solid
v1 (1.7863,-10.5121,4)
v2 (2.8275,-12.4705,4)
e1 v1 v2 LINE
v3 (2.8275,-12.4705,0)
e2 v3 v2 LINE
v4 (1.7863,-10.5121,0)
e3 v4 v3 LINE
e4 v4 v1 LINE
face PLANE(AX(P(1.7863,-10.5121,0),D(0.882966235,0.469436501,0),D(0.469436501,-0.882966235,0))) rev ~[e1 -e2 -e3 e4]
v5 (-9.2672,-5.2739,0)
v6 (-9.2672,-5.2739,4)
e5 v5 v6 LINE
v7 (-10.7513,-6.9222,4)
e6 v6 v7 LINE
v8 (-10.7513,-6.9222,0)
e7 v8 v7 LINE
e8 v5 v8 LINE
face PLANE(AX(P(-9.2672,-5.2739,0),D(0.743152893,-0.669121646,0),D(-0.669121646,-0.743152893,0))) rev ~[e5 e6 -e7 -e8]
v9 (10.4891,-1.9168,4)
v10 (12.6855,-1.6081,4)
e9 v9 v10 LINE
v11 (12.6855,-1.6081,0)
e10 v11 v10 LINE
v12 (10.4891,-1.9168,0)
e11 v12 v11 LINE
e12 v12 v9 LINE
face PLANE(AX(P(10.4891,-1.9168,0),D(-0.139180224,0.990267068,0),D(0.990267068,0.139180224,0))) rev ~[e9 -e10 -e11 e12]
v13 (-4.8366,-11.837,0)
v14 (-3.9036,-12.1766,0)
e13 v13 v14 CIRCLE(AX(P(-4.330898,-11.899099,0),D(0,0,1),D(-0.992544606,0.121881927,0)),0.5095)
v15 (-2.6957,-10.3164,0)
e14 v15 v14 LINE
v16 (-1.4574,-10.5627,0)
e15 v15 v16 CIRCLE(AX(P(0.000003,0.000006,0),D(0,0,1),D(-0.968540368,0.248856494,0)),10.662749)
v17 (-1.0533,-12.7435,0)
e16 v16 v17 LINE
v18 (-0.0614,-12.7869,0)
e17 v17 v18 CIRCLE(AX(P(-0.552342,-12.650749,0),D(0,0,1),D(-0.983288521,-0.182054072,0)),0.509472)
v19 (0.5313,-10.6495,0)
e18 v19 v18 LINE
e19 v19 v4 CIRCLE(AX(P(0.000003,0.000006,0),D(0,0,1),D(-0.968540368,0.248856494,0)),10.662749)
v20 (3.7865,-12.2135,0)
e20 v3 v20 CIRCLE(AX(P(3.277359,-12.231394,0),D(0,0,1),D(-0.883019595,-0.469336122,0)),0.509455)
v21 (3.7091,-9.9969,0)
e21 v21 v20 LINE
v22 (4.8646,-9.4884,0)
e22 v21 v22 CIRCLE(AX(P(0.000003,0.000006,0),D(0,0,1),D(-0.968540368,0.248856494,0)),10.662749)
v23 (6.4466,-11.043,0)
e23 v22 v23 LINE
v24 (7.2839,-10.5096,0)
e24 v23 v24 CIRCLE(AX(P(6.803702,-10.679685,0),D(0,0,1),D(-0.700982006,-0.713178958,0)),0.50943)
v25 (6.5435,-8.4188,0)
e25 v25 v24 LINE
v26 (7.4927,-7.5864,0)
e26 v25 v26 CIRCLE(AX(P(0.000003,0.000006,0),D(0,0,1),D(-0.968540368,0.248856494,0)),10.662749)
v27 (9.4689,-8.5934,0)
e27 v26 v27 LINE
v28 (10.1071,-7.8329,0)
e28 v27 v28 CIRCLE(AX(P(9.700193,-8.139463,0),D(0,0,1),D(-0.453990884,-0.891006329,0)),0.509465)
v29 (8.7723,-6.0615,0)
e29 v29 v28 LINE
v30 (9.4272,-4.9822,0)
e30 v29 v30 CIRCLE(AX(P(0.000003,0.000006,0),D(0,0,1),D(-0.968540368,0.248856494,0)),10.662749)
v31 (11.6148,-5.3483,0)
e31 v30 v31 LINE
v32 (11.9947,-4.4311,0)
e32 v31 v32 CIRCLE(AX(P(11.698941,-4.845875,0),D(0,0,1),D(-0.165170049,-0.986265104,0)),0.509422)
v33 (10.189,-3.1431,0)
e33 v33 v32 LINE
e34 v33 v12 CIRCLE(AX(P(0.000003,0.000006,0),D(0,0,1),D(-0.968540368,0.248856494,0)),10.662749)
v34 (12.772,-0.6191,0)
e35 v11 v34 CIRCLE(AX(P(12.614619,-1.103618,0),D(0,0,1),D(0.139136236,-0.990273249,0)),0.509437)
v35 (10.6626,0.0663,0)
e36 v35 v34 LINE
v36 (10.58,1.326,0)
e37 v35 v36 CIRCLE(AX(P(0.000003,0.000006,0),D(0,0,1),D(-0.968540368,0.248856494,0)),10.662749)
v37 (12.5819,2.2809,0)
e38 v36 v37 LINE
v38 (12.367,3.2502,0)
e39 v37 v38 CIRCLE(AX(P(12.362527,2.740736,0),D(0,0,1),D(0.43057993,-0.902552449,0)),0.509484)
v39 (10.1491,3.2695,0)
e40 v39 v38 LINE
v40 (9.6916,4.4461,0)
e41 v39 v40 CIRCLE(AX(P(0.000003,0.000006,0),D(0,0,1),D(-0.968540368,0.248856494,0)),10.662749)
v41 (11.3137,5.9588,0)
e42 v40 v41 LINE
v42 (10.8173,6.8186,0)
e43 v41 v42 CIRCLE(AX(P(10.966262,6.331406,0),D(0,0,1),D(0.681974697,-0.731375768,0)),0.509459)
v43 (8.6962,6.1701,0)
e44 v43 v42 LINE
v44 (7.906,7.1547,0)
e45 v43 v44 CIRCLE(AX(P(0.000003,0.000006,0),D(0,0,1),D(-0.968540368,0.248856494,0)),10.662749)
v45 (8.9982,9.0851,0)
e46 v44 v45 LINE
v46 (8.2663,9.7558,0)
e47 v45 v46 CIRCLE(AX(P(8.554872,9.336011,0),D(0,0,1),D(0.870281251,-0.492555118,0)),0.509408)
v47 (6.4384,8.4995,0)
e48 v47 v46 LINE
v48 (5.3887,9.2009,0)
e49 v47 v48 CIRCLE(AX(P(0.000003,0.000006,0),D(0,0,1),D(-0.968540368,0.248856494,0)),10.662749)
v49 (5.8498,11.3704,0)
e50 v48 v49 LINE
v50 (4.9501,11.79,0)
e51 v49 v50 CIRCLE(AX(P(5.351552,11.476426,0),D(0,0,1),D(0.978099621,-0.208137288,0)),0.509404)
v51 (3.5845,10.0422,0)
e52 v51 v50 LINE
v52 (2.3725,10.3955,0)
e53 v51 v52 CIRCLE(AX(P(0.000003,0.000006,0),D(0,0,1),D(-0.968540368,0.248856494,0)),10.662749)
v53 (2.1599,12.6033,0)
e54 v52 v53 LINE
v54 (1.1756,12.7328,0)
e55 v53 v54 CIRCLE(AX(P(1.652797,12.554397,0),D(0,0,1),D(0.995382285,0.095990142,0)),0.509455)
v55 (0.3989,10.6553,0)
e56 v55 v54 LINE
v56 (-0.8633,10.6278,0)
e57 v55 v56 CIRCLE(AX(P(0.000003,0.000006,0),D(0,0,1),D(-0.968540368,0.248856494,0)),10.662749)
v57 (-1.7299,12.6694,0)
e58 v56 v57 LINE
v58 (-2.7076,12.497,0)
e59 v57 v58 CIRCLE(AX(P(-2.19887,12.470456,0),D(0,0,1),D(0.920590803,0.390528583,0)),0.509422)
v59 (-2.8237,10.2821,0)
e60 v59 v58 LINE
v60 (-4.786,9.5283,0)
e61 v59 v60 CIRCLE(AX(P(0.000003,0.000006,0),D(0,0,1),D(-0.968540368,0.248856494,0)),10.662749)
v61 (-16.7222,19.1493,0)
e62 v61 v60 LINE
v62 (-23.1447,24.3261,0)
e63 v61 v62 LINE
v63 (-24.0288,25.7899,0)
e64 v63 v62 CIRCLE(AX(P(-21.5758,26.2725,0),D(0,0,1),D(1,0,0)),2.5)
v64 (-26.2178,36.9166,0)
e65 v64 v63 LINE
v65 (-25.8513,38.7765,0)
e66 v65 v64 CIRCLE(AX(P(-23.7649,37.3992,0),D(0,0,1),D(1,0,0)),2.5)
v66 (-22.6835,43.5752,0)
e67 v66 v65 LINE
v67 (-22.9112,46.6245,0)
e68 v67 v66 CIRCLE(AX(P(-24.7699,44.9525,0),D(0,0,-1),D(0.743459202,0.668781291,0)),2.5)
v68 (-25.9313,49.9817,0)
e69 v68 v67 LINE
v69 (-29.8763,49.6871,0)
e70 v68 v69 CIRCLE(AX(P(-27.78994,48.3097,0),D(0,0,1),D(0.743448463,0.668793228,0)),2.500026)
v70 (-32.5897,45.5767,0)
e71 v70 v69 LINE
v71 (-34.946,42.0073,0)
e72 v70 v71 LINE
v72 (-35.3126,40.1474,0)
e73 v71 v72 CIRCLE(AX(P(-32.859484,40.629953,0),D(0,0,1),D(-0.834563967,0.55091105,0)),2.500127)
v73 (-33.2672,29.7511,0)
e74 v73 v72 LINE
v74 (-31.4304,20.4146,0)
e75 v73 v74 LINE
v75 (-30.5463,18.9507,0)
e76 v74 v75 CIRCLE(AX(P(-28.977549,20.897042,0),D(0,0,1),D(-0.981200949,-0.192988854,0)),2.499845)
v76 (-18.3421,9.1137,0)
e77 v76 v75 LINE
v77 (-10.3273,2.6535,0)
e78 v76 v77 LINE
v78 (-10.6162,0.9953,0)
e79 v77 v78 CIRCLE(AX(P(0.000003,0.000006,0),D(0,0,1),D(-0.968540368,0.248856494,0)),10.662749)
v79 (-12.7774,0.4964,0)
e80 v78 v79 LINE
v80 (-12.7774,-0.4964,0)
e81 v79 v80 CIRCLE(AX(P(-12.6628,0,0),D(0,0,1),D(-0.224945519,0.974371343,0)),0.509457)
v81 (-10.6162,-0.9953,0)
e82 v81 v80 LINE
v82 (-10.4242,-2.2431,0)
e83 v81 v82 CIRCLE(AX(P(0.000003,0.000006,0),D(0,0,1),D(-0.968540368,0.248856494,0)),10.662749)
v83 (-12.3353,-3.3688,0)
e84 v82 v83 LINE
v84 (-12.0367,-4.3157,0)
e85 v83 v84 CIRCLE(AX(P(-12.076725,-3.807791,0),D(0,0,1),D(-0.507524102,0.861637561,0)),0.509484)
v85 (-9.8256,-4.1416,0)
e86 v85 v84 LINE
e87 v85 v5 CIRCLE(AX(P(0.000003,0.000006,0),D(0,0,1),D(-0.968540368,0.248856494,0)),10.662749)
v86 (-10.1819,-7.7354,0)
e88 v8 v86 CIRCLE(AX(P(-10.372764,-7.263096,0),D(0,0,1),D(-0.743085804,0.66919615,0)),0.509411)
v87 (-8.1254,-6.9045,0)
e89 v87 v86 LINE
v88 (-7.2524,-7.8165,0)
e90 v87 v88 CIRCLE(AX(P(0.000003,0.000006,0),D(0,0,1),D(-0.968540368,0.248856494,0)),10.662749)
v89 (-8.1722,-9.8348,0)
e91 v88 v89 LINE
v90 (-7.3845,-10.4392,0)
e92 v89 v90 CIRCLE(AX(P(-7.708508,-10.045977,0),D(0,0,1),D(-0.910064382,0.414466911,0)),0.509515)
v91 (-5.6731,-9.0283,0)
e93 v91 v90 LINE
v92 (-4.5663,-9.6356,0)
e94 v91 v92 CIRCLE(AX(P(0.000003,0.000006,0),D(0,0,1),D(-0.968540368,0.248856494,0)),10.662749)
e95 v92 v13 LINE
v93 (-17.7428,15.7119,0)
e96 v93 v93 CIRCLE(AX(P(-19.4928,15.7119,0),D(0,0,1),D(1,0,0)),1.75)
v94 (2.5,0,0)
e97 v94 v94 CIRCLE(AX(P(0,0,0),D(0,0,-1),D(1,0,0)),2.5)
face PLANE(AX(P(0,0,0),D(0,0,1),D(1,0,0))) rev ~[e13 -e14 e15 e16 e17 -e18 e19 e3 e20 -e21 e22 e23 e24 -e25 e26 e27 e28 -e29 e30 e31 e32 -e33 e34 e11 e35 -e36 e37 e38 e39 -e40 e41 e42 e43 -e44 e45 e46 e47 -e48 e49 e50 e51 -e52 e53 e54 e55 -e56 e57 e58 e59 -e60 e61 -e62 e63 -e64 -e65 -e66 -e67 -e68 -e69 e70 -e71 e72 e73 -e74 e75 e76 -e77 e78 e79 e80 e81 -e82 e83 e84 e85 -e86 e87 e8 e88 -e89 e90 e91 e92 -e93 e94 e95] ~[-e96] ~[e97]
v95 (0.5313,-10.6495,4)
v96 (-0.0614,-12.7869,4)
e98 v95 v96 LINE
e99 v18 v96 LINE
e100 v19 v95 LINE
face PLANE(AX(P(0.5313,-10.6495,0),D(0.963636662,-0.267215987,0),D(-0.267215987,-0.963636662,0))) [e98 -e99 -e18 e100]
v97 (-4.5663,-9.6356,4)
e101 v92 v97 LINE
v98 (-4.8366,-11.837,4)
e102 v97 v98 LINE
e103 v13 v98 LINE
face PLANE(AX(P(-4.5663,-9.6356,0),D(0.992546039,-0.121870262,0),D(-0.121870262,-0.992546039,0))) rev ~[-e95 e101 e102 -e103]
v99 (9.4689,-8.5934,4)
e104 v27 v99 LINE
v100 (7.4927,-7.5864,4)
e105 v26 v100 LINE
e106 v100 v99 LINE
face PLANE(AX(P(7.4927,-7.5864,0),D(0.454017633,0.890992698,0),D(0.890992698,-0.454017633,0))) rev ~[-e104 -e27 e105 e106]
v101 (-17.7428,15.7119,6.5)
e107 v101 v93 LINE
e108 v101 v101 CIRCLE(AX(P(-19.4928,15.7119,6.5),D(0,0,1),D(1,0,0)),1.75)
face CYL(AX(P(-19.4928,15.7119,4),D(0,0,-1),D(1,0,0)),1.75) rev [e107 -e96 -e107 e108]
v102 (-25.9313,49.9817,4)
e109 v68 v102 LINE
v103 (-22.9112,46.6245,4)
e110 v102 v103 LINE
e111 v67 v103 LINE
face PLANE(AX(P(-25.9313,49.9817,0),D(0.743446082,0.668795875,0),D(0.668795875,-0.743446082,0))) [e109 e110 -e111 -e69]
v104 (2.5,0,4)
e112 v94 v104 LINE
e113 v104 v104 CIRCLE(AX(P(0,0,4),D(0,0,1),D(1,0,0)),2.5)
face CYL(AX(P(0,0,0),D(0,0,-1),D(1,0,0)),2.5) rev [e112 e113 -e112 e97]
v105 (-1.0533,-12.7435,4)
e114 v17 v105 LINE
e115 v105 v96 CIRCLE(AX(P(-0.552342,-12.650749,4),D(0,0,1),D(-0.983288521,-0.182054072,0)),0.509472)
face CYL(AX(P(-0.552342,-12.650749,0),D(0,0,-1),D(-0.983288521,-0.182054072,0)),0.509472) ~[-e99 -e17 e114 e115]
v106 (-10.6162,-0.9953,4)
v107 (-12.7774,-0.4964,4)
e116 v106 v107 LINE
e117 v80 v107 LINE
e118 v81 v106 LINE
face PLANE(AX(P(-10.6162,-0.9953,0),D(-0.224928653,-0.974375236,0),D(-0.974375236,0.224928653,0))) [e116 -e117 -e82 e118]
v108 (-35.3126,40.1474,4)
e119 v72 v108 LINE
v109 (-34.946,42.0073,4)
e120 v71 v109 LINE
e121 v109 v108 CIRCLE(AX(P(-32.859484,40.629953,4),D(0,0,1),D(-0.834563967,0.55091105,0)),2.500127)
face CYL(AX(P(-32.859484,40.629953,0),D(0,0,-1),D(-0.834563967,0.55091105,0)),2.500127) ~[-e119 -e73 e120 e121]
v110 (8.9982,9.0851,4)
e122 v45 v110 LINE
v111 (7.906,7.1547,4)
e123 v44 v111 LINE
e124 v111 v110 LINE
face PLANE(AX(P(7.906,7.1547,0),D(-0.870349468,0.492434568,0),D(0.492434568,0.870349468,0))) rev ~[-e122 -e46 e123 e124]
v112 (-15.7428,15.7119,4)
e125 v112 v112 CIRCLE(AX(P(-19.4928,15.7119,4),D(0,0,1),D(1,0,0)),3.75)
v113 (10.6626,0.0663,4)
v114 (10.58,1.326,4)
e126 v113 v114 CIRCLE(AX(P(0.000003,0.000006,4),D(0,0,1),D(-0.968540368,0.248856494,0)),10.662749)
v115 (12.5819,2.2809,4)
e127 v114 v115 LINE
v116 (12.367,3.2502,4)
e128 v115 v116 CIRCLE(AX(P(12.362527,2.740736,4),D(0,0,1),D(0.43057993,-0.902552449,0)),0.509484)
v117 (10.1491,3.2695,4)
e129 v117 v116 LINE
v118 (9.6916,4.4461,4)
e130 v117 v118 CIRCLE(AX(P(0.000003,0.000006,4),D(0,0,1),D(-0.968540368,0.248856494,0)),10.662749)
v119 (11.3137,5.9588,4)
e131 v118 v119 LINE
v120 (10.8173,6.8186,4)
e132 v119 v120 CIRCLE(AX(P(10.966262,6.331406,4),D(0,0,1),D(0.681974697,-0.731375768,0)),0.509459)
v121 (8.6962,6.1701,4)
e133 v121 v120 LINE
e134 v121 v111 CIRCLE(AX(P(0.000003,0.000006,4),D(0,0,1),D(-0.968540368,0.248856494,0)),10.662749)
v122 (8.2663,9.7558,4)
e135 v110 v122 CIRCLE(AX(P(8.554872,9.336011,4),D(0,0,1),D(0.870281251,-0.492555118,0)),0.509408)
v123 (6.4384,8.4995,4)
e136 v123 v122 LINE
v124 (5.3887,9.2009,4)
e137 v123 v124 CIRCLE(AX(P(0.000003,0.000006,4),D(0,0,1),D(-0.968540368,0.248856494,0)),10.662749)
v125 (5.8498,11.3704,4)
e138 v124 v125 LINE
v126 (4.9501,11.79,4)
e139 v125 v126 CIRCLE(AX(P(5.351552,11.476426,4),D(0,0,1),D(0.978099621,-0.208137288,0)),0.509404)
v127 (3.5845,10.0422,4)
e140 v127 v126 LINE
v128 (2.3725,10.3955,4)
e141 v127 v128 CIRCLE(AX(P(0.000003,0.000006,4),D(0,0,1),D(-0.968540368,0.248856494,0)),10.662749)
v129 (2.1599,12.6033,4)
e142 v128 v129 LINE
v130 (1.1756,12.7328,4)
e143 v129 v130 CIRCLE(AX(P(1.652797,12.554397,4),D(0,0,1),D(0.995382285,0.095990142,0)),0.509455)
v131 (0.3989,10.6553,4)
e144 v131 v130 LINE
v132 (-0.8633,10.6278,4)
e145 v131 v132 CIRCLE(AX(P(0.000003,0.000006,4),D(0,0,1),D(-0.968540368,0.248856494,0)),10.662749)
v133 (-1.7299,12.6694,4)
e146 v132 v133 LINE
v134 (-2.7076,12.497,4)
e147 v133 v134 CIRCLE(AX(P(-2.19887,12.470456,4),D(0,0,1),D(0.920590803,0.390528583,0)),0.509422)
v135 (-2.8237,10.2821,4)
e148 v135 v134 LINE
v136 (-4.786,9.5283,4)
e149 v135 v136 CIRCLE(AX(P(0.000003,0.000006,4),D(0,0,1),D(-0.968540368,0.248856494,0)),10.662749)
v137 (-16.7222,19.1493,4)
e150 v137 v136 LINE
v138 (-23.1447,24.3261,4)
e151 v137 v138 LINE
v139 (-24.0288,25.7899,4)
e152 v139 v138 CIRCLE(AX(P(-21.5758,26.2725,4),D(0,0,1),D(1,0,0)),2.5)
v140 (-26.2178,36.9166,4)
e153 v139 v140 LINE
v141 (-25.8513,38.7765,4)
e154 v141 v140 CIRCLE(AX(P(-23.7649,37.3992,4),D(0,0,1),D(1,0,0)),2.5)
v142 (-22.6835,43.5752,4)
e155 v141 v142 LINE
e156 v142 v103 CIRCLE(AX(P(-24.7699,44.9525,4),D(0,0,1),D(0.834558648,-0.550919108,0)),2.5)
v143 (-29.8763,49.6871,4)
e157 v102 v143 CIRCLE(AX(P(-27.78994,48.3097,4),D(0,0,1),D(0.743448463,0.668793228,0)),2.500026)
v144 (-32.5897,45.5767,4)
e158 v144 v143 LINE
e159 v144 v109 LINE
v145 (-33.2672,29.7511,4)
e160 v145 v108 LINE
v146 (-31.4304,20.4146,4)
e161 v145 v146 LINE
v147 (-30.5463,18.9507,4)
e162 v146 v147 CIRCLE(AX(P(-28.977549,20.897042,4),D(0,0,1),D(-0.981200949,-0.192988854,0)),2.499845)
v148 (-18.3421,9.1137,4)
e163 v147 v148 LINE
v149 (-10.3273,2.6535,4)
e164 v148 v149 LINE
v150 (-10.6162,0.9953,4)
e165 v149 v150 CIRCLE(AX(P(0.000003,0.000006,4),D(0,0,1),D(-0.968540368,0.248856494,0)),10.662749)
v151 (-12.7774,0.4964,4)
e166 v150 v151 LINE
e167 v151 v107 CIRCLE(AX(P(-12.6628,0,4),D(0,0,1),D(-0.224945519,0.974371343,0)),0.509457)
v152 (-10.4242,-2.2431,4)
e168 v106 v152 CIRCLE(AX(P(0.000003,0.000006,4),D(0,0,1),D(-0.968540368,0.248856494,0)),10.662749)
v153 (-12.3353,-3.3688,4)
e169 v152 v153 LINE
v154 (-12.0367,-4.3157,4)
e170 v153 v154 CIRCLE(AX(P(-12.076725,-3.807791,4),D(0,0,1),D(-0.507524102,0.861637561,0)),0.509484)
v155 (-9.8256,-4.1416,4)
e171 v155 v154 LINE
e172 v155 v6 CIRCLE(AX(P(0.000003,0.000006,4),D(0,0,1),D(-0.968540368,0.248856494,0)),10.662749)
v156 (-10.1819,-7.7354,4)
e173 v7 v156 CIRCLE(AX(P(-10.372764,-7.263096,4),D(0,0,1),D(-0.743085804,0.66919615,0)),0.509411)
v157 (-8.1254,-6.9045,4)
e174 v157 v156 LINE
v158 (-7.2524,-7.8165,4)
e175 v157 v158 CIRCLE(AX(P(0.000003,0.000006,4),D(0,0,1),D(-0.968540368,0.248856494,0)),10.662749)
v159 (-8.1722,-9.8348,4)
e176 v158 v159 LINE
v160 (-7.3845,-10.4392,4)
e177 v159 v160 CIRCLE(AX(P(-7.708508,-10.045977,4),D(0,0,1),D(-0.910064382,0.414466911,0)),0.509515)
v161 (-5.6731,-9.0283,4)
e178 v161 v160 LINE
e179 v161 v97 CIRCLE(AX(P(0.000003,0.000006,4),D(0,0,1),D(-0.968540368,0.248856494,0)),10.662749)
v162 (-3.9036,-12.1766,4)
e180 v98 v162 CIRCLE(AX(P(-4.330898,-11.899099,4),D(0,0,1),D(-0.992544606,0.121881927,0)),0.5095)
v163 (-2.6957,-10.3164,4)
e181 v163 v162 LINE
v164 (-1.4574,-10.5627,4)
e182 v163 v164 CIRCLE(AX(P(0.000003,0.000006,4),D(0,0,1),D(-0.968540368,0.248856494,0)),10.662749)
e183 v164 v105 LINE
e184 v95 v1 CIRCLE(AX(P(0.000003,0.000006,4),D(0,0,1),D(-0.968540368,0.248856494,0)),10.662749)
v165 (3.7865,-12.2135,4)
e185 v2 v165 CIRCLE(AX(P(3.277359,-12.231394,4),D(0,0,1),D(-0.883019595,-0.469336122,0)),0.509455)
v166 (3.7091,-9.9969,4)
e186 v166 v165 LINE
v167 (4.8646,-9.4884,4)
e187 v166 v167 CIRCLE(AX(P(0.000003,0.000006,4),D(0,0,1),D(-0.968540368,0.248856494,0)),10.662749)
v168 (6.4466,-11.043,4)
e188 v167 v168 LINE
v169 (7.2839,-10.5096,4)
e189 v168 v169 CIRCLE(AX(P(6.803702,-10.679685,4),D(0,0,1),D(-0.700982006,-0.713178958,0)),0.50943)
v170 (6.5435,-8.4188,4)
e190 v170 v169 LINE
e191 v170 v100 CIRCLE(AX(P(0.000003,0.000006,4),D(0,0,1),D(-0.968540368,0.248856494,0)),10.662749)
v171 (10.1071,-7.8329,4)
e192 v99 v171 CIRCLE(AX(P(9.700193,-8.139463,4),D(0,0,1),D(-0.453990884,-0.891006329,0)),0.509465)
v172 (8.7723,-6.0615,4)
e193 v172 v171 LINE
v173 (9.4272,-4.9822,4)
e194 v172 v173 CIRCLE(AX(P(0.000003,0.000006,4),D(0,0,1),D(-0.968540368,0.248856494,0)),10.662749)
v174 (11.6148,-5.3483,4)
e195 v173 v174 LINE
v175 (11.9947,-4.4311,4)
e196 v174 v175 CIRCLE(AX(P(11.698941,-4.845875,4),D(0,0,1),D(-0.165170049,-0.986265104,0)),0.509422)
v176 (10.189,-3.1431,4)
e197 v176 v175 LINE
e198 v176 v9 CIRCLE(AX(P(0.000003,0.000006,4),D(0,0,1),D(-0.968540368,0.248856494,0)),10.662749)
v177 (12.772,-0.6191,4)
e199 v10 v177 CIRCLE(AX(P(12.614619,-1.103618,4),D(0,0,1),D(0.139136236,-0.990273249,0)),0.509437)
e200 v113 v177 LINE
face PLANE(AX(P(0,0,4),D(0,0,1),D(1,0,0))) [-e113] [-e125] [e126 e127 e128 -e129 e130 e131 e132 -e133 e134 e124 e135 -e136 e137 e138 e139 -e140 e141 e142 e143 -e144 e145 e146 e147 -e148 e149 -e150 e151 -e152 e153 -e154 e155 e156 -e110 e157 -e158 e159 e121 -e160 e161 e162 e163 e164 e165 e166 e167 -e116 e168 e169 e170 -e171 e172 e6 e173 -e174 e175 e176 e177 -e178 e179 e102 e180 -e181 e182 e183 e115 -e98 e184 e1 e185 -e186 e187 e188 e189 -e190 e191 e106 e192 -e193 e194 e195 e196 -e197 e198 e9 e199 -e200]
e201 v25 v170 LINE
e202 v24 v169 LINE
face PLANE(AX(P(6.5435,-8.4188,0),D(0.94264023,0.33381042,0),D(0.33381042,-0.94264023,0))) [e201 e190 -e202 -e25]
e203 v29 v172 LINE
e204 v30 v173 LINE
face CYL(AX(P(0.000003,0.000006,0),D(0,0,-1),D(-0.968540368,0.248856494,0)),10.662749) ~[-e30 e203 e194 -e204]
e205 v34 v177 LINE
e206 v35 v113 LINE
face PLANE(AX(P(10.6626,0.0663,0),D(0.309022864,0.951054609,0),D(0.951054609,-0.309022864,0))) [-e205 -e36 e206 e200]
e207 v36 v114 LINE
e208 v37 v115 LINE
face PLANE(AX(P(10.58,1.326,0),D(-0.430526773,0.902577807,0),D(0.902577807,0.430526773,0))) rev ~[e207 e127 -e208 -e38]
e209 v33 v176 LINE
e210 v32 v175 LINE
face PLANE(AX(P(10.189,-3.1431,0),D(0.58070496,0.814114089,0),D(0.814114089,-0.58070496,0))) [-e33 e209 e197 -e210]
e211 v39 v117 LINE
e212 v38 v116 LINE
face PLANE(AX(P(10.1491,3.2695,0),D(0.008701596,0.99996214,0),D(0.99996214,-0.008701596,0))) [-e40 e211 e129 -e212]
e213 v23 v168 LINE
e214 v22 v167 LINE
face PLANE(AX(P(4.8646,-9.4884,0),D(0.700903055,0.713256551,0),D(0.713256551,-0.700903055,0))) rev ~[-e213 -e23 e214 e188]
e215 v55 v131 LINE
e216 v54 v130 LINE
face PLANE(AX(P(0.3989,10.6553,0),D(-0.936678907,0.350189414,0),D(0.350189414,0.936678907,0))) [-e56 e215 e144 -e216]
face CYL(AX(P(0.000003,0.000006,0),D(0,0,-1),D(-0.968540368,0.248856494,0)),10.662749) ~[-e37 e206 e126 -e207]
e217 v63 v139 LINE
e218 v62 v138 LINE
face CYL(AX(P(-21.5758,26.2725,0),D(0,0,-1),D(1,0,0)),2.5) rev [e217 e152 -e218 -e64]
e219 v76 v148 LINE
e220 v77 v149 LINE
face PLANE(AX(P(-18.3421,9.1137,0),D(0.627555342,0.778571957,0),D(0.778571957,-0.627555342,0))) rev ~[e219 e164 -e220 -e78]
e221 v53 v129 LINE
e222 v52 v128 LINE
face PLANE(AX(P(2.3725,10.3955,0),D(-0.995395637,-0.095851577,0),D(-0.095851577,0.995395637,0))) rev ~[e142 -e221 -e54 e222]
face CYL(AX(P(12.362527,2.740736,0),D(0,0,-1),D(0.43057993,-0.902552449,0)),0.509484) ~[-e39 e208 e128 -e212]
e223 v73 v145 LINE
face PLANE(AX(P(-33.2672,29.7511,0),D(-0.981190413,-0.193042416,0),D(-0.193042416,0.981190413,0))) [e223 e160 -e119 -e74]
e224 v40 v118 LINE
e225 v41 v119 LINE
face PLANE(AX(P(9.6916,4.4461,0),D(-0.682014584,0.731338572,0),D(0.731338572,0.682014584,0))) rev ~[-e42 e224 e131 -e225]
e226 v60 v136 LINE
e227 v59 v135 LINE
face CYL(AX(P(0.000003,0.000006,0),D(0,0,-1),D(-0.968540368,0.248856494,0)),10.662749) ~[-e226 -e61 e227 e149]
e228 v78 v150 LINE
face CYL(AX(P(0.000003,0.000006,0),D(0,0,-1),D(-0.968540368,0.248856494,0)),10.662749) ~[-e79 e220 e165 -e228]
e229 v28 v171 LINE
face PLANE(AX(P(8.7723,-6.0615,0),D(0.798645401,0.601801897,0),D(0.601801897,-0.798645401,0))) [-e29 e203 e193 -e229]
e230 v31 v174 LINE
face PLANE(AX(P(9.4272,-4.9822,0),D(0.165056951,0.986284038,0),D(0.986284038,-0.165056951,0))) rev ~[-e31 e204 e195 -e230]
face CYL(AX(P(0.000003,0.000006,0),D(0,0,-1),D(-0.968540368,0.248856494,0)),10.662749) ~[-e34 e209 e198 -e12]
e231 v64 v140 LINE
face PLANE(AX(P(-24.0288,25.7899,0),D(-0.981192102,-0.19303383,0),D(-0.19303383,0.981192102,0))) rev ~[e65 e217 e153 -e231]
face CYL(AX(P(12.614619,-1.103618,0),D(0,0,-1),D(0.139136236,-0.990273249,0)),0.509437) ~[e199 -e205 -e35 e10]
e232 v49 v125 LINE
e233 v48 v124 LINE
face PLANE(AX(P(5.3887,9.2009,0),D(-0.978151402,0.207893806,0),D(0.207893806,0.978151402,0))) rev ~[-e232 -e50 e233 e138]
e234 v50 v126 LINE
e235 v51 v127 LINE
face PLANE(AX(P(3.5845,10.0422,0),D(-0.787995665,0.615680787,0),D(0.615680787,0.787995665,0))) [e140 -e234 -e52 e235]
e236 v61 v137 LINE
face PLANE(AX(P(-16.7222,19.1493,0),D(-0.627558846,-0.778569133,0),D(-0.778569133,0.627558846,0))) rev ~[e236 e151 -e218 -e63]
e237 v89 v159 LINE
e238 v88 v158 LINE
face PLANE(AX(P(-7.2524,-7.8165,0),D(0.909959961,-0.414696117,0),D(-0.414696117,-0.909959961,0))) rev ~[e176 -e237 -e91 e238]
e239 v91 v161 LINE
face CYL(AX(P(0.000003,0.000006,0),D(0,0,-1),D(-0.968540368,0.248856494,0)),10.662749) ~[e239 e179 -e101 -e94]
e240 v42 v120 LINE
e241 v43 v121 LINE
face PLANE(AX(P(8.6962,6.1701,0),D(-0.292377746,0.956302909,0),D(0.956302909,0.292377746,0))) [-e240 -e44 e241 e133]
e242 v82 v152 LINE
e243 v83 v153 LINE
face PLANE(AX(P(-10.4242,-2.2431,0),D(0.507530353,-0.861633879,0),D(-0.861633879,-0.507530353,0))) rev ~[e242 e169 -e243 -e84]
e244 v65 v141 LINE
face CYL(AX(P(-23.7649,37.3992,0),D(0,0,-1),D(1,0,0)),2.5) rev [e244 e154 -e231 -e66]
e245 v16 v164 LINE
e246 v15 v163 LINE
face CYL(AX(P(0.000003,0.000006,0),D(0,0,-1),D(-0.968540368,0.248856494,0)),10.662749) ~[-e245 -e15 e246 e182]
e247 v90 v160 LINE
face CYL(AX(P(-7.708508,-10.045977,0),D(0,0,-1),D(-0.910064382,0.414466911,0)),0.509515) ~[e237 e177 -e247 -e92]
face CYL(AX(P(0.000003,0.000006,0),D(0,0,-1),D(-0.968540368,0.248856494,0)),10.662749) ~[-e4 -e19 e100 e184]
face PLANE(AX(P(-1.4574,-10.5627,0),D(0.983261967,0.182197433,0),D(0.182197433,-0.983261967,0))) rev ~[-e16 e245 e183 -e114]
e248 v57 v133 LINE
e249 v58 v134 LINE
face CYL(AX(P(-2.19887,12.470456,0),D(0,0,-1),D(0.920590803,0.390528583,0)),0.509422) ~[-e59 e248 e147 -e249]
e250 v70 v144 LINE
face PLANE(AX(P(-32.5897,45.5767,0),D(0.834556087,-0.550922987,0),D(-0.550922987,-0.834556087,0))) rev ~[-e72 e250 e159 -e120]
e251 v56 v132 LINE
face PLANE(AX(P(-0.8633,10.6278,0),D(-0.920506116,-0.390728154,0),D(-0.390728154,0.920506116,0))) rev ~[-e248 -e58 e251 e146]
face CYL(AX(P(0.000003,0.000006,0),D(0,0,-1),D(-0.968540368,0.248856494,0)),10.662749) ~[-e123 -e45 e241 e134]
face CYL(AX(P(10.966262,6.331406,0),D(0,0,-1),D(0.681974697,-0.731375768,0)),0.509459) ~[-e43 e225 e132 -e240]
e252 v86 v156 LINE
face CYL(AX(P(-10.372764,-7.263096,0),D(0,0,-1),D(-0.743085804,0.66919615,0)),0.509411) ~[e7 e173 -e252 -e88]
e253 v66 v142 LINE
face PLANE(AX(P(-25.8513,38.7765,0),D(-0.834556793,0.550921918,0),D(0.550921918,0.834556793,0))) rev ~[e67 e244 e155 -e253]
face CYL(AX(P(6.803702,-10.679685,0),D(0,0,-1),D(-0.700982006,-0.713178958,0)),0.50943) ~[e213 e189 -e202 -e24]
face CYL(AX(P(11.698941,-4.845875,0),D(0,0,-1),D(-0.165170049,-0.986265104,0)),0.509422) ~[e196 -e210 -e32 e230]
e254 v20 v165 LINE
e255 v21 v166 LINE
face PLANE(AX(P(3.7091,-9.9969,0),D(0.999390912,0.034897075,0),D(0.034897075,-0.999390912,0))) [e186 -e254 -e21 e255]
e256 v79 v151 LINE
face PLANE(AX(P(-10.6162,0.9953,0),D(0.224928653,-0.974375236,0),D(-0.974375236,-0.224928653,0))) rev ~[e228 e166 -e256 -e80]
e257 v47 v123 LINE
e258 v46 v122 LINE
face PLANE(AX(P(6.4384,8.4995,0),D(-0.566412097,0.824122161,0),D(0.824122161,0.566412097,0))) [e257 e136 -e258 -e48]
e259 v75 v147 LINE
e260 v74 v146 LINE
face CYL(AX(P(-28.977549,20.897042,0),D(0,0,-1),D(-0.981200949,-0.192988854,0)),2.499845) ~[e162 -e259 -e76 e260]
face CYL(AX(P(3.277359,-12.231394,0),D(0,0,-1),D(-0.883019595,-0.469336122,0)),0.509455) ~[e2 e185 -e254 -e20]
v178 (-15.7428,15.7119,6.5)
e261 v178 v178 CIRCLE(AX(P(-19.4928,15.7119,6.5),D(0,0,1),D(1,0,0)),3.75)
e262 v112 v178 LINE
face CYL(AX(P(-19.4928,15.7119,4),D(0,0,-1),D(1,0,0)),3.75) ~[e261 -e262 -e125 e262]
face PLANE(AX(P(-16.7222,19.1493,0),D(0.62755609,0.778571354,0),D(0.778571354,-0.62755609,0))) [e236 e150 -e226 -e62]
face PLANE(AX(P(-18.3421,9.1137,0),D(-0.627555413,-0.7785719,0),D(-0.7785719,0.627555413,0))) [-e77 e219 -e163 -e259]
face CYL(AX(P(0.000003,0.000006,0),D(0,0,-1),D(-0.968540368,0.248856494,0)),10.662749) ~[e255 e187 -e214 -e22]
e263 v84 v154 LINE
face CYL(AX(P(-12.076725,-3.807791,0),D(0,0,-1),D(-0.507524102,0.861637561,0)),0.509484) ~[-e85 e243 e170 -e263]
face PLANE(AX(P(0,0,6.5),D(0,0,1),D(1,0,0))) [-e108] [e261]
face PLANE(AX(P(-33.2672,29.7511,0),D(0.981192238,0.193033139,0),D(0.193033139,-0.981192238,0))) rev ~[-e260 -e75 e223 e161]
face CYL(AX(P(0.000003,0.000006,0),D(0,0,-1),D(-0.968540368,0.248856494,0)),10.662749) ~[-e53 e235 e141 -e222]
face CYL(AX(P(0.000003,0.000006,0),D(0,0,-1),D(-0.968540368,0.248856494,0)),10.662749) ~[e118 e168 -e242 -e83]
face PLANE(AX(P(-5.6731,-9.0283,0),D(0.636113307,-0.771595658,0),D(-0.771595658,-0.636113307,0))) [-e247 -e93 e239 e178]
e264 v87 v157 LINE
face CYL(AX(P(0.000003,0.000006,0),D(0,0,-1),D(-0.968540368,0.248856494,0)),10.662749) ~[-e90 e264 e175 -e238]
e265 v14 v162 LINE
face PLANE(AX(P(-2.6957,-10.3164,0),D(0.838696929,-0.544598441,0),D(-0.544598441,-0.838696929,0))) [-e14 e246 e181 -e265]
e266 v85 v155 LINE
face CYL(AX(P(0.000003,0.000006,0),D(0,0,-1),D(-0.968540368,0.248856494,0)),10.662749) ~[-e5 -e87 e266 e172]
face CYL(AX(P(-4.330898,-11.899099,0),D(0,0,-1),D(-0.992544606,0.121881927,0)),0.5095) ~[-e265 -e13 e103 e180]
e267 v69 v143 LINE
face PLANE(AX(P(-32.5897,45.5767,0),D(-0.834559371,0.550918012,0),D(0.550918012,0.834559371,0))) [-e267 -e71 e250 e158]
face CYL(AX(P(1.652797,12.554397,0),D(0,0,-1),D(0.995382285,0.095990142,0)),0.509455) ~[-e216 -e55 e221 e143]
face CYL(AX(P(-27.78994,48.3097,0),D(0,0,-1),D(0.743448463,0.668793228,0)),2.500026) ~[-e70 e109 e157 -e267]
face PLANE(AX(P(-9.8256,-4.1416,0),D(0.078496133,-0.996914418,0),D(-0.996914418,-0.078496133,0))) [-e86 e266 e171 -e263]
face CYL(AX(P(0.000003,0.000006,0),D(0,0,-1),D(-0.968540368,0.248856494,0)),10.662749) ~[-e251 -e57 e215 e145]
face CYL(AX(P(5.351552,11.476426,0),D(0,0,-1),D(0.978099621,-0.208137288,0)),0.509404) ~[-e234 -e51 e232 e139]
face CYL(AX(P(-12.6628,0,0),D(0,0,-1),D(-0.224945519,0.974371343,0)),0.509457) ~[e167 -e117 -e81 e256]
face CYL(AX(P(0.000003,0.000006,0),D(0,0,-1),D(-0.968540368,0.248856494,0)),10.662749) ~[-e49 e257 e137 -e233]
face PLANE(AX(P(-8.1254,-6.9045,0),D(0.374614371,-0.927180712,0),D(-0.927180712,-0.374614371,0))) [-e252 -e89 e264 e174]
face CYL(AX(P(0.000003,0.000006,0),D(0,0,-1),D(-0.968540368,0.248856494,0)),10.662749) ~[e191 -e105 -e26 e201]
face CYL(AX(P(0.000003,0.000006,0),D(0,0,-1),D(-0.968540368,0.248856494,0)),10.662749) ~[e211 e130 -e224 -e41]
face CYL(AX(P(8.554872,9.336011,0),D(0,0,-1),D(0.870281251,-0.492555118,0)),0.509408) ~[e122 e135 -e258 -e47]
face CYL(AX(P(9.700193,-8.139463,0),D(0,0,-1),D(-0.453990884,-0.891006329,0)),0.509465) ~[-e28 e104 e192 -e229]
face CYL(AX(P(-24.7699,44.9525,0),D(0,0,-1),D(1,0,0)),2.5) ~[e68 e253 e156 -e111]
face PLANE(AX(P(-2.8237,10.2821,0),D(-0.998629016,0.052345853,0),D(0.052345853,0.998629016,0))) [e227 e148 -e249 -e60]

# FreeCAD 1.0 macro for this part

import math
import FreeCAD as App
import Part
import Sketcher

V = App.Vector
Q = App.Units.Quantity

doc = App.newDocument("Part")
body = doc.addObject("PartDesign::Body", "Body")

# Sketch on XY plane
sketch1 = doc.addObject("Sketcher::SketchObject", "Sketch")
body.addObject(sketch1)
sketch1.AttachmentSupport = (doc.XY_Plane, [""])
sketch1.MapMode = "FlatFace"
sketch1.addGeometry([
    Part.ArcOfCircle(Part.Circle(V(0, 0, 0), V(0, 0, 1), 10.7), math.radians(105.36), math.radians(116.67)),  # 0
    Part.LineSegment(V(-4.8, 9.5, 0), V(-16.7, 19.1, 0)),  # 1
    Part.LineSegment(V(-16.7, 19.1, 0), V(-23.1, 24.3, 0)),  # 2
    Part.ArcOfCircle(Part.Circle(V(-21.6, 26.3, 0), V(0, 0, 1), 2.5), math.radians(-169), math.radians(-129)),  # 3
    Part.LineSegment(V(-24, 25.8, 0), V(-26.2, 36.9, 0)),  # 4
    Part.ArcOfCircle(Part.Circle(V(-23.8, 37.4, 0), V(0, 0, 1), 2.5), math.radians(147), math.radians(191)),  # 5
    Part.LineSegment(V(-25.9, 38.8, 0), V(-22.7, 43.6, 0)),  # 6
    Part.ArcOfCircle(Part.Circle(V(-24.8, 45, 0), V(0, 0, 1), 2.5), math.radians(-33), math.radians(42)),  # 7
    Part.LineSegment(V(-22.9, 46.6, 0), V(-25.9, 50, 0)),  # 8
    Part.ArcOfCircle(Part.Circle(V(-27.8, 48.3, 0), V(0, 0, 1), 2.5), math.radians(42), math.radians(147)),  # 9
    Part.LineSegment(V(-29.9, 49.7, 0), V(-32.6, 45.6, 0)),  # 10
    Part.LineSegment(V(-32.6, 45.6, 0), V(-34.9, 42, 0)),  # 11
    Part.ArcOfCircle(Part.Circle(V(-32.9, 40.6, 0), V(0, 0, 1), 2.5), math.radians(147), math.radians(191)),  # 12
    Part.LineSegment(V(-35.3, 40.1, 0), V(-33.3, 29.8, 0)),  # 13
    Part.LineSegment(V(-33.3, 29.8, 0), V(-31.4, 20.4, 0)),  # 14
    Part.ArcOfCircle(Part.Circle(V(-29, 20.9, 0), V(0, 0, 1), 2.5), math.radians(-169), math.radians(-129)),  # 15
    Part.LineSegment(V(-30.5, 19, 0), V(-18.3, 9.1, 0)),  # 16
    Part.LineSegment(V(-18.3, 9.1, 0), V(-10.3, 2.7, 0)),  # 17
    Part.ArcOfCircle(Part.Circle(V(0, 0, 0), V(0, 0, 1), 10.7), math.radians(165.59), math.radians(174.64)),  # 18
    Part.LineSegment(V(-10.6, 1, 0), V(-12.8, 0.5, 0)),  # 19
    Part.ArcOfCircle(Part.Circle(V(-12.7, 0, 0), V(0, 0, 1), 0.5), math.radians(103), math.radians(257)),  # 20
    Part.LineSegment(V(-12.8, -0.5, 0), V(-10.6, -1, 0)),  # 21
    Part.ArcOfCircle(Part.Circle(V(0, 0, 0), V(0, 0, 1), 10.7), math.radians(-174.64), math.radians(-167.86)),  # 22
    Part.LineSegment(V(-10.4, -2.2, 0), V(-12.3, -3.4, 0)),  # 23
    Part.ArcOfCircle(Part.Circle(V(-12.1, -3.8, 0), V(0, 0, 1), 0.5), math.radians(121), math.radians(275)),  # 24
    Part.LineSegment(V(-12, -4.3, 0), V(-9.8, -4.1, 0)),  # 25
    Part.ArcOfCircle(Part.Circle(V(0, 0, 0), V(0, 0, 1), 10.7), math.radians(-157.14), math.radians(-150.36)),  # 26
    Part.LineSegment(V(-9.3, -5.3, 0), V(-10.8, -6.9, 0)),  # 27
    Part.ArcOfCircle(Part.Circle(V(-10.4, -7.3, 0), V(0, 0, 1), 0.5), math.radians(138), math.radians(292)),  # 28
    Part.LineSegment(V(-10.2, -7.7, 0), V(-8.1, -6.9, 0)),  # 29
    Part.ArcOfCircle(Part.Circle(V(0, 0, 0), V(0, 0, 1), 10.7), math.radians(-139.64), math.radians(-132.86)),  # 30
    Part.LineSegment(V(-7.3, -7.8, 0), V(-8.2, -9.8, 0)),  # 31
    Part.ArcOfCircle(Part.Circle(V(-7.7, -10, 0), V(0, 0, 1), 0.5), math.radians(156), math.radians(309)),  # 32
    Part.LineSegment(V(-7.4, -10.4, 0), V(-5.7, -9, 0)),  # 33
    Part.ArcOfCircle(Part.Circle(V(0, 0, 0), V(0, 0, 1), 10.7), math.radians(-122.14), math.radians(-115.36)),  # 34
    Part.LineSegment(V(-4.6, -9.6, 0), V(-4.8, -11.8, 0)),  # 35
    Part.ArcOfCircle(Part.Circle(V(-4.3, -11.9, 0), V(0, 0, 1), 0.5), math.radians(173), math.radians(327)),  # 36
    Part.LineSegment(V(-3.9, -12.2, 0), V(-2.7, -10.3, 0)),  # 37
    Part.ArcOfCircle(Part.Circle(V(0, 0, 0), V(0, 0, 1), 10.7), math.radians(-104.64), math.radians(-97.86)),  # 38
    Part.LineSegment(V(-1.5, -10.6, 0), V(-1.1, -12.7, 0)),  # 39
    Part.ArcOfCircle(Part.Circle(V(-0.6, -12.7, 0), V(0, 0, 1), 0.5), math.radians(-170), math.radians(-16)),  # 40
    Part.LineSegment(V(-0.1, -12.8, 0), V(0.5, -10.6, 0)),  # 41
    Part.ArcOfCircle(Part.Circle(V(0, 0, 0), V(0, 0, 1), 10.7), math.radians(-87.14), math.radians(-80.36)),  # 42
    Part.LineSegment(V(1.8, -10.5, 0), V(2.8, -12.5, 0)),  # 43
    Part.ArcOfCircle(Part.Circle(V(3.3, -12.2, 0), V(0, 0, 1), 0.5), math.radians(-152), math.radians(2)),  # 44
    Part.LineSegment(V(3.8, -12.2, 0), V(3.7, -10, 0)),  # 45
    Part.ArcOfCircle(Part.Circle(V(0, 0, 0), V(0, 0, 1), 10.7), math.radians(-69.64), math.radians(-62.86)),  # 46
    Part.LineSegment(V(4.9, -9.5, 0), V(6.4, -11, 0)),  # 47
    Part.ArcOfCircle(Part.Circle(V(6.8, -10.7, 0), V(0, 0, 1), 0.5), math.radians(-135), math.radians(20)),  # 48
    Part.LineSegment(V(7.3, -10.5, 0), V(6.5, -8.4, 0)),  # 49
    Part.ArcOfCircle(Part.Circle(V(0, 0, 0), V(0, 0, 1), 10.7), math.radians(-52.14), math.radians(-45.36)),  # 50
    Part.LineSegment(V(7.5, -7.6, 0), V(9.5, -8.6, 0)),  # 51
    Part.ArcOfCircle(Part.Circle(V(9.7, -8.1, 0), V(0, 0, 1), 0.5), math.radians(-117), math.radians(37)),  # 52
    Part.LineSegment(V(10.1, -7.8, 0), V(8.8, -6.1, 0)),  # 53
    Part.ArcOfCircle(Part.Circle(V(0, 0, 0), V(0, 0, 1), 10.7), math.radians(-34.64), math.radians(-27.86)),  # 54
    Part.LineSegment(V(9.4, -5, 0), V(11.6, -5.3, 0)),  # 55
    Part.ArcOfCircle(Part.Circle(V(11.7, -4.8, 0), V(0, 0, 1), 0.5), math.radians(-100), math.radians(55)),  # 56
    Part.LineSegment(V(12, -4.4, 0), V(10.2, -3.1, 0)),  # 57
    Part.ArcOfCircle(Part.Circle(V(0, 0, 0), V(0, 0, 1), 10.7), math.radians(-17.14), math.radians(-10.36)),  # 58
    Part.LineSegment(V(10.5, -1.9, 0), V(12.7, -1.6, 0)),  # 59
    Part.ArcOfCircle(Part.Circle(V(12.6, -1.1, 0), V(0, 0, 1), 0.5), math.radians(-82), math.radians(72)),  # 60
    Part.LineSegment(V(12.8, -0.6, 0), V(10.7, 0.1, 0)),  # 61
    Part.ArcOfCircle(Part.Circle(V(0, 0, 0), V(0, 0, 1), 10.7), math.radians(0.36), math.radians(7.14)),  # 62
    Part.LineSegment(V(10.6, 1.3, 0), V(12.6, 2.3, 0)),  # 63
    Part.ArcOfCircle(Part.Circle(V(12.4, 2.7, 0), V(0, 0, 1), 0.5), math.radians(-65), math.radians(90)),  # 64
    Part.LineSegment(V(12.4, 3.3, 0), V(10.1, 3.3, 0)),  # 65
    Part.ArcOfCircle(Part.Circle(V(0, 0, 0), V(0, 0, 1), 10.7), math.radians(17.86), math.radians(24.64)),  # 66
    Part.LineSegment(V(9.7, 4.4, 0), V(11.3, 6, 0)),  # 67
    Part.ArcOfCircle(Part.Circle(V(11, 6.3, 0), V(0, 0, 1), 0.5), math.radians(-47), math.radians(107)),  # 68
    Part.LineSegment(V(10.8, 6.8, 0), V(8.7, 6.2, 0)),  # 69
    Part.ArcOfCircle(Part.Circle(V(0, 0, 0), V(0, 0, 1), 10.7), math.radians(35.36), math.radians(42.14)),  # 70
    Part.LineSegment(V(7.9, 7.2, 0), V(9, 9.1, 0)),  # 71
    Part.ArcOfCircle(Part.Circle(V(8.6, 9.3, 0), V(0, 0, 1), 0.5), math.radians(-30), math.radians(124)),  # 72
    Part.LineSegment(V(8.3, 9.8, 0), V(6.4, 8.5, 0)),  # 73
    Part.ArcOfCircle(Part.Circle(V(0, 0, 0), V(0, 0, 1), 10.7), math.radians(52.86), math.radians(59.64)),  # 74
    Part.LineSegment(V(5.4, 9.2, 0), V(5.8, 11.4, 0)),  # 75
    Part.ArcOfCircle(Part.Circle(V(5.4, 11.5, 0), V(0, 0, 1), 0.5), math.radians(-12), math.radians(142)),  # 76
    Part.LineSegment(V(5, 11.8, 0), V(3.6, 10, 0)),  # 77
    Part.ArcOfCircle(Part.Circle(V(0, 0, 0), V(0, 0, 1), 10.7), math.radians(70.36), math.radians(77.14)),  # 78
    Part.LineSegment(V(2.4, 10.4, 0), V(2.2, 12.6, 0)),  # 79
    Part.ArcOfCircle(Part.Circle(V(1.7, 12.6, 0), V(0, 0, 1), 0.5), math.radians(6), math.radians(160)),  # 80
    Part.LineSegment(V(1.2, 12.7, 0), V(0.4, 10.7, 0)),  # 81
    Part.ArcOfCircle(Part.Circle(V(0, 0, 0), V(0, 0, 1), 10.7), math.radians(87.86), math.radians(94.64)),  # 82
    Part.LineSegment(V(-0.9, 10.6, 0), V(-1.7, 12.7, 0)),  # 83
    Part.ArcOfCircle(Part.Circle(V(-2.2, 12.5, 0), V(0, 0, 1), 0.5), math.radians(23), math.radians(177)),  # 84
    Part.LineSegment(V(-2.7, 12.5, 0), V(-2.8, 10.3, 0)),  # 85
    Part.Circle(V(0, 0, 0), V(0, 0, 1), 2.5),  # 86
    Part.Circle(V(-19.5, 15.7, 0), V(0, 0, 1), 1.8),  # 87
], False)
sketch1.addConstraint([
    Sketcher.Constraint("Coincident", 0, 2, 1, 1),
    Sketcher.Constraint("Coincident", 1, 2, 2, 1),
    Sketcher.Constraint("Tangent", 2, 2, 3, 2),
    Sketcher.Constraint("Tangent", 3, 1, 4, 1),
    Sketcher.Constraint("Tangent", 4, 2, 5, 2),
    Sketcher.Constraint("Tangent", 5, 1, 6, 1),
    Sketcher.Constraint("Tangent", 6, 2, 7, 1),
    Sketcher.Constraint("Tangent", 7, 2, 8, 1),
    Sketcher.Constraint("Tangent", 8, 2, 9, 1),
    Sketcher.Constraint("Tangent", 9, 2, 10, 1),
    Sketcher.Constraint("Coincident", 10, 2, 11, 1),
    Sketcher.Constraint("Tangent", 11, 2, 12, 1),
    Sketcher.Constraint("Tangent", 12, 2, 13, 1),
    Sketcher.Constraint("Coincident", 13, 2, 14, 1),
    Sketcher.Constraint("Tangent", 14, 2, 15, 1),
    Sketcher.Constraint("Tangent", 15, 2, 16, 1),
    Sketcher.Constraint("Coincident", 16, 2, 17, 1),
    Sketcher.Constraint("Coincident", 17, 2, 18, 1),
    Sketcher.Constraint("Coincident", 18, 2, 19, 1),
    Sketcher.Constraint("Tangent", 19, 2, 20, 1),
    Sketcher.Constraint("Tangent", 20, 2, 21, 1),
    Sketcher.Constraint("Coincident", 21, 2, 22, 1),
    Sketcher.Constraint("Coincident", 22, 2, 23, 1),
    Sketcher.Constraint("Tangent", 23, 2, 24, 1),
    Sketcher.Constraint("Tangent", 24, 2, 25, 1),
    Sketcher.Constraint("Coincident", 25, 2, 26, 1),
    Sketcher.Constraint("Coincident", 26, 2, 27, 1),
    Sketcher.Constraint("Tangent", 27, 2, 28, 1),
    Sketcher.Constraint("Tangent", 28, 2, 29, 1),
    Sketcher.Constraint("Coincident", 29, 2, 30, 1),
    Sketcher.Constraint("Coincident", 30, 2, 31, 1),
    Sketcher.Constraint("Tangent", 31, 2, 32, 1),
    Sketcher.Constraint("Tangent", 32, 2, 33, 1),
    Sketcher.Constraint("Coincident", 33, 2, 34, 1),
    Sketcher.Constraint("Coincident", 34, 2, 35, 1),
    Sketcher.Constraint("Tangent", 35, 2, 36, 1),
    Sketcher.Constraint("Tangent", 36, 2, 37, 1),
    Sketcher.Constraint("Coincident", 37, 2, 38, 1),
    Sketcher.Constraint("Coincident", 38, 2, 39, 1),
    Sketcher.Constraint("Tangent", 39, 2, 40, 1),
    Sketcher.Constraint("Tangent", 40, 2, 41, 1),
    Sketcher.Constraint("Coincident", 41, 2, 42, 1),
    Sketcher.Constraint("Coincident", 42, 2, 43, 1),
    Sketcher.Constraint("Tangent", 43, 2, 44, 1),
    Sketcher.Constraint("Tangent", 44, 2, 45, 1),
    Sketcher.Constraint("Coincident", 45, 2, 46, 1),
    Sketcher.Constraint("Coincident", 46, 2, 47, 1),
    Sketcher.Constraint("Tangent", 47, 2, 48, 1),
    Sketcher.Constraint("Tangent", 48, 2, 49, 1),
    Sketcher.Constraint("Coincident", 49, 2, 50, 1),
    Sketcher.Constraint("Coincident", 50, 2, 51, 1),
    Sketcher.Constraint("Tangent", 51, 2, 52, 1),
    Sketcher.Constraint("Tangent", 52, 2, 53, 1),
    Sketcher.Constraint("Coincident", 53, 2, 54, 1),
    Sketcher.Constraint("Coincident", 54, 2, 55, 1),
    Sketcher.Constraint("Tangent", 55, 2, 56, 1),
    Sketcher.Constraint("Tangent", 56, 2, 57, 1),
    Sketcher.Constraint("Coincident", 57, 2, 58, 1),
    Sketcher.Constraint("Coincident", 58, 2, 59, 1),
    Sketcher.Constraint("Tangent", 59, 2, 60, 1),
    Sketcher.Constraint("Tangent", 60, 2, 61, 1),
    Sketcher.Constraint("Coincident", 61, 2, 62, 1),
    Sketcher.Constraint("Coincident", 62, 2, 63, 1),
    Sketcher.Constraint("Tangent", 63, 2, 64, 1),
    Sketcher.Constraint("Tangent", 64, 2, 65, 1),
    Sketcher.Constraint("Coincident", 65, 2, 66, 1),
    Sketcher.Constraint("Coincident", 66, 2, 67, 1),
    Sketcher.Constraint("Tangent", 67, 2, 68, 1),
    Sketcher.Constraint("Tangent", 68, 2, 69, 1),
    Sketcher.Constraint("Coincident", 69, 2, 70, 1),
    Sketcher.Constraint("Coincident", 70, 2, 71, 1),
    Sketcher.Constraint("Tangent", 71, 2, 72, 1),
    Sketcher.Constraint("Tangent", 72, 2, 73, 1),
    Sketcher.Constraint("Coincident", 73, 2, 74, 1),
    Sketcher.Constraint("Coincident", 74, 2, 75, 1),
    Sketcher.Constraint("Tangent", 75, 2, 76, 1),
    Sketcher.Constraint("Tangent", 76, 2, 77, 1),
    Sketcher.Constraint("Coincident", 77, 2, 78, 1),
    Sketcher.Constraint("Coincident", 78, 2, 79, 1),
    Sketcher.Constraint("Tangent", 79, 2, 80, 1),
    Sketcher.Constraint("Tangent", 80, 2, 81, 1),
    Sketcher.Constraint("Coincident", 81, 2, 82, 1),
    Sketcher.Constraint("Coincident", 82, 2, 83, 1),
    Sketcher.Constraint("Tangent", 83, 2, 84, 1),
    Sketcher.Constraint("Tangent", 84, 2, 85, 1),
    Sketcher.Constraint("Coincident", 85, 2, 0, 1),
    Sketcher.Constraint("Coincident", 0, 3, -1, 1),
    Sketcher.Constraint("Coincident", 18, 3, -1, 1),
    Sketcher.Constraint("Coincident", 22, 3, -1, 1),
    Sketcher.Constraint("Coincident", 26, 3, -1, 1),
    Sketcher.Constraint("Coincident", 30, 3, -1, 1),
    Sketcher.Constraint("Coincident", 34, 3, -1, 1),
    Sketcher.Constraint("Coincident", 38, 3, -1, 1),
    Sketcher.Constraint("Coincident", 42, 3, -1, 1),
    Sketcher.Constraint("Coincident", 46, 3, -1, 1),
    Sketcher.Constraint("Coincident", 50, 3, -1, 1),
    Sketcher.Constraint("Coincident", 54, 3, -1, 1),
    Sketcher.Constraint("Coincident", 58, 3, -1, 1),
    Sketcher.Constraint("Coincident", 62, 3, -1, 1),
    Sketcher.Constraint("Coincident", 66, 3, -1, 1),
    Sketcher.Constraint("Coincident", 70, 3, -1, 1),
    Sketcher.Constraint("Coincident", 74, 3, -1, 1),
    Sketcher.Constraint("Coincident", 78, 3, -1, 1),
    Sketcher.Constraint("Coincident", 82, 3, -1, 1),
    Sketcher.Constraint("Coincident", 86, 3, -1, 1),
    Sketcher.Constraint("Equal", 3, 5),
    Sketcher.Constraint("Equal", 5, 7),
    Sketcher.Constraint("Equal", 7, 9),
    Sketcher.Constraint("Equal", 9, 12),
    Sketcher.Constraint("Equal", 12, 15),
    Sketcher.Constraint("Equal", 0, 18),
    Sketcher.Constraint("Equal", 18, 22),
    Sketcher.Constraint("Equal", 20, 24),
    Sketcher.Constraint("Equal", 22, 26),
    Sketcher.Constraint("Equal", 24, 28),
    Sketcher.Constraint("Equal", 26, 30),
    Sketcher.Constraint("Equal", 28, 32),
    Sketcher.Constraint("Equal", 30, 34),
    Sketcher.Constraint("Equal", 32, 36),
    Sketcher.Constraint("Equal", 34, 38),
    Sketcher.Constraint("Equal", 36, 40),
    Sketcher.Constraint("Equal", 38, 42),
    Sketcher.Constraint("Equal", 40, 44),
    Sketcher.Constraint("Equal", 42, 46),
    Sketcher.Constraint("Equal", 44, 48),
    Sketcher.Constraint("Equal", 46, 50),
    Sketcher.Constraint("Equal", 48, 52),
    Sketcher.Constraint("Equal", 50, 54),
    Sketcher.Constraint("Equal", 52, 56),
    Sketcher.Constraint("Equal", 54, 58),
    Sketcher.Constraint("Equal", 56, 60),
    Sketcher.Constraint("Equal", 58, 62),
    Sketcher.Constraint("Equal", 60, 64),
    Sketcher.Constraint("Equal", 62, 66),
    Sketcher.Constraint("Equal", 64, 68),
    Sketcher.Constraint("Equal", 66, 70),
    Sketcher.Constraint("Equal", 68, 72),
    Sketcher.Constraint("Equal", 70, 74),
    Sketcher.Constraint("Equal", 72, 76),
    Sketcher.Constraint("Equal", 74, 78),
    Sketcher.Constraint("Equal", 76, 80),
    Sketcher.Constraint("Equal", 78, 82),
    Sketcher.Constraint("Equal", 80, 84),
    Sketcher.Constraint("Equal", 15, 86),
    Sketcher.Constraint("Symmetric", 19, 2, 20, 2, -1),
    Sketcher.Constraint("Parallel", 1, 2),
    Sketcher.Constraint("Parallel", 6, 10),
    Sketcher.Constraint("Parallel", 10, 11),
    Sketcher.Constraint("Parallel", 4, 13),
    Sketcher.Constraint("Parallel", 13, 14),
    Sketcher.Constraint("Parallel", 2, 16),
    Sketcher.Constraint("Parallel", 16, 17),
    Sketcher.Constraint("Equal", 21, 23),
    Sketcher.Constraint("Equal", 23, 25),
    Sketcher.Constraint("Equal", 25, 27),
    Sketcher.Constraint("Equal", 27, 29),
    Sketcher.Constraint("Equal", 29, 31),
    Sketcher.Constraint("Equal", 31, 33),
    Sketcher.Constraint("Equal", 33, 35),
    Sketcher.Constraint("Equal", 35, 37),
    Sketcher.Constraint("Equal", 37, 39),
    Sketcher.Constraint("Equal", 39, 41),
    Sketcher.Constraint("Equal", 41, 43),
    Sketcher.Constraint("Equal", 43, 45),
    Sketcher.Constraint("Equal", 45, 47),
    Sketcher.Constraint("Equal", 47, 49),
    Sketcher.Constraint("Equal", 49, 51),
    Sketcher.Constraint("Equal", 51, 53),
    Sketcher.Constraint("Equal", 53, 55),
    Sketcher.Constraint("Equal", 55, 57),
    Sketcher.Constraint("Equal", 57, 59),
    Sketcher.Constraint("Equal", 59, 61),
    Sketcher.Constraint("Equal", 61, 63),
    Sketcher.Constraint("Equal", 63, 65),
    Sketcher.Constraint("Equal", 65, 67),
    Sketcher.Constraint("Equal", 67, 69),
    Sketcher.Constraint("Equal", 69, 71),
    Sketcher.Constraint("Equal", 71, 73),
    Sketcher.Constraint("Equal", 73, 75),
    Sketcher.Constraint("Equal", 75, 77),
    Sketcher.Constraint("Equal", 77, 79),
    Sketcher.Constraint("Equal", 79, 81),
    Sketcher.Constraint("Equal", 81, 83),
    Sketcher.Constraint("Equal", 83, 85),
    Sketcher.Constraint("Diameter", 86, 5.0),
    Sketcher.Constraint("Diameter", 87, 3.5),
    Sketcher.Constraint("Angle", 1, Q("141.13 deg")),
    Sketcher.Constraint("Angle", 4, Q("101.13 deg")),
    Sketcher.Constraint("Angle", 6, Q("56.5697 deg")),
    Sketcher.Constraint("Distance", 4, 11.34),
    Sketcher.Constraint("Distance", 6, 5.75),
    Sketcher.Constraint("Angle", 27, Q("-131.9993 deg")),
    Sketcher.Constraint("Angle", 29, Q("22.0005 deg")),
    Sketcher.Constraint("Angle", 35, Q("-97 deg")),
    Sketcher.Constraint("Angle", 45, Q("91.9999 deg")),
    Sketcher.Constraint("Angle", 53, Q("126.999 deg")),
    Sketcher.Constraint("Angle", 59, Q("8.0004 deg")),
    Sketcher.Constraint("Angle", 61, Q("161.9996 deg")),
    Sketcher.Constraint("Angle", 69, Q("-162.9996 deg")),
    Sketcher.Constraint("Angle", 75, Q("78.001 deg")),
    Sketcher.Constraint("Angle", 83, Q("112.9998 deg")),
    Sketcher.Constraint("Angle", 85, Q("-93.0006 deg")),
    Sketcher.Constraint("Angle", 23, Q("-149.5005 deg")),
    Sketcher.Constraint("Angle", 31, Q("-114.5002 deg")),
    Sketcher.Constraint("Angle", 47, Q("-44.4995 deg")),
    Sketcher.Constraint("Angle", 49, Q("109.5002 deg")),
    Sketcher.Constraint("Angle", 55, Q("-9.5005 deg")),
    Sketcher.Constraint("Angle", 57, Q("144.4999 deg")),
    Sketcher.Constraint("Angle", 63, Q("25.501 deg")),
    Sketcher.Constraint("Angle", 71, Q("60.4993 deg")),
    Sketcher.Constraint("Angle", 73, Q("-145.4996 deg")),
    Sketcher.Constraint("Angle", 79, Q("95.5003 deg")),
    Sketcher.Constraint("Angle", 81, Q("-110.499 deg")),
    Sketcher.Constraint("Distance", 17, 10.2942),
    Sketcher.Constraint("Radius", 0, 10.6627),
    Sketcher.Constraint("Radius", 20, 0.5095),
    Sketcher.Constraint("DistanceX", 7, 3, -1, 1, 24.77),
    Sketcher.Constraint("DistanceX", 9, 3, -1, 1, 27.79),
    Sketcher.Constraint("DistanceY", -1, 1, 12, 3, 40.63),
    Sketcher.Constraint("DistanceY", -1, 1, 3, 1, 25.79),
    Sketcher.Constraint("DistanceX", -1, 1, 62, 2, 10.58),
    Sketcher.Constraint("DistanceY", -1, 1, 64, 2, 3.25),
    Sketcher.Constraint("DistanceY", -1, 1, 69, 2, 6.17),
    Sketcher.Constraint("DistanceX", -1, 1, 76, 2, 4.95),
    Sketcher.Constraint("Distance", 1, 15.331),
    Sketcher.Constraint("Distance", 11, 4.277),
    Sketcher.Constraint("Distance", 16, 15.675),
    Sketcher.Constraint("DistanceY", -1, 1, 15, 3, 20.897),
    Sketcher.Constraint("DistanceY", 32, 3, -1, 1, 10.046),
    Sketcher.Constraint("DistanceX", 36, 3, -1, 1, 4.331),
    Sketcher.Constraint("DistanceY", -1, 1, 87, 3, 15.712),
    Sketcher.Constraint("DistanceY", -1, 1, 13, 2, 29.751),
    Sketcher.Constraint("DistanceY", 22, 2, -1, 1, 2.243),
    Sketcher.Constraint("DistanceY", 40, 2, -1, 1, 12.787),
    Sketcher.Constraint("DistanceY", 42, 2, -1, 1, 10.512),
    Sketcher.Constraint("DistanceX", -1, 1, 51, 2, 9.469),
    Sketcher.Constraint("DistanceX", 20, 3, -1, 1, 12.6628),
    Sketcher.Constraint("DistanceX", 40, 3, -1, 1, 0.5523),
    Sketcher.Constraint("DistanceX", 87, 3, -1, 1, 19.4928),
])
pad1 = doc.addObject("PartDesign::Pad", "Pad")
body.addObject(pad1)
pad1.Profile = sketch1
pad1.Length = 4

# Sketch on XY plane
sketch2 = doc.addObject("Sketcher::SketchObject", "Sketch001")
body.addObject(sketch2)
sketch2.AttachmentSupport = (doc.XY_Plane, [""])
sketch2.MapMode = "FlatFace"
sketch2.AttachmentOffset = App.Placement(V(0, 0, 4), App.Rotation())
sketch2.addGeometry([
    Part.Circle(V(-19.5, 15.7, 0), V(0, 0, 1), 3.8),
    Part.Circle(V(-19.5, 15.7, 0), V(0, 0, 1), 1.8),
], False)
sketch2.addConstraint([
    Sketcher.Constraint("Coincident", 1, 3, 0, 3),
    Sketcher.Constraint("Diameter", 0, 7.5),
    Sketcher.Constraint("Diameter", 1, 3.5),
    Sketcher.Constraint("DistanceY", -1, 1, 0, 3, 15.712),
    Sketcher.Constraint("DistanceX", 0, 3, -1, 1, 19.4928),
])
pad2 = doc.addObject("PartDesign::Pad", "Pad001")
body.addObject(pad2)
pad2.Profile = sketch2
pad2.Length = 2.5

doc.recompute()
